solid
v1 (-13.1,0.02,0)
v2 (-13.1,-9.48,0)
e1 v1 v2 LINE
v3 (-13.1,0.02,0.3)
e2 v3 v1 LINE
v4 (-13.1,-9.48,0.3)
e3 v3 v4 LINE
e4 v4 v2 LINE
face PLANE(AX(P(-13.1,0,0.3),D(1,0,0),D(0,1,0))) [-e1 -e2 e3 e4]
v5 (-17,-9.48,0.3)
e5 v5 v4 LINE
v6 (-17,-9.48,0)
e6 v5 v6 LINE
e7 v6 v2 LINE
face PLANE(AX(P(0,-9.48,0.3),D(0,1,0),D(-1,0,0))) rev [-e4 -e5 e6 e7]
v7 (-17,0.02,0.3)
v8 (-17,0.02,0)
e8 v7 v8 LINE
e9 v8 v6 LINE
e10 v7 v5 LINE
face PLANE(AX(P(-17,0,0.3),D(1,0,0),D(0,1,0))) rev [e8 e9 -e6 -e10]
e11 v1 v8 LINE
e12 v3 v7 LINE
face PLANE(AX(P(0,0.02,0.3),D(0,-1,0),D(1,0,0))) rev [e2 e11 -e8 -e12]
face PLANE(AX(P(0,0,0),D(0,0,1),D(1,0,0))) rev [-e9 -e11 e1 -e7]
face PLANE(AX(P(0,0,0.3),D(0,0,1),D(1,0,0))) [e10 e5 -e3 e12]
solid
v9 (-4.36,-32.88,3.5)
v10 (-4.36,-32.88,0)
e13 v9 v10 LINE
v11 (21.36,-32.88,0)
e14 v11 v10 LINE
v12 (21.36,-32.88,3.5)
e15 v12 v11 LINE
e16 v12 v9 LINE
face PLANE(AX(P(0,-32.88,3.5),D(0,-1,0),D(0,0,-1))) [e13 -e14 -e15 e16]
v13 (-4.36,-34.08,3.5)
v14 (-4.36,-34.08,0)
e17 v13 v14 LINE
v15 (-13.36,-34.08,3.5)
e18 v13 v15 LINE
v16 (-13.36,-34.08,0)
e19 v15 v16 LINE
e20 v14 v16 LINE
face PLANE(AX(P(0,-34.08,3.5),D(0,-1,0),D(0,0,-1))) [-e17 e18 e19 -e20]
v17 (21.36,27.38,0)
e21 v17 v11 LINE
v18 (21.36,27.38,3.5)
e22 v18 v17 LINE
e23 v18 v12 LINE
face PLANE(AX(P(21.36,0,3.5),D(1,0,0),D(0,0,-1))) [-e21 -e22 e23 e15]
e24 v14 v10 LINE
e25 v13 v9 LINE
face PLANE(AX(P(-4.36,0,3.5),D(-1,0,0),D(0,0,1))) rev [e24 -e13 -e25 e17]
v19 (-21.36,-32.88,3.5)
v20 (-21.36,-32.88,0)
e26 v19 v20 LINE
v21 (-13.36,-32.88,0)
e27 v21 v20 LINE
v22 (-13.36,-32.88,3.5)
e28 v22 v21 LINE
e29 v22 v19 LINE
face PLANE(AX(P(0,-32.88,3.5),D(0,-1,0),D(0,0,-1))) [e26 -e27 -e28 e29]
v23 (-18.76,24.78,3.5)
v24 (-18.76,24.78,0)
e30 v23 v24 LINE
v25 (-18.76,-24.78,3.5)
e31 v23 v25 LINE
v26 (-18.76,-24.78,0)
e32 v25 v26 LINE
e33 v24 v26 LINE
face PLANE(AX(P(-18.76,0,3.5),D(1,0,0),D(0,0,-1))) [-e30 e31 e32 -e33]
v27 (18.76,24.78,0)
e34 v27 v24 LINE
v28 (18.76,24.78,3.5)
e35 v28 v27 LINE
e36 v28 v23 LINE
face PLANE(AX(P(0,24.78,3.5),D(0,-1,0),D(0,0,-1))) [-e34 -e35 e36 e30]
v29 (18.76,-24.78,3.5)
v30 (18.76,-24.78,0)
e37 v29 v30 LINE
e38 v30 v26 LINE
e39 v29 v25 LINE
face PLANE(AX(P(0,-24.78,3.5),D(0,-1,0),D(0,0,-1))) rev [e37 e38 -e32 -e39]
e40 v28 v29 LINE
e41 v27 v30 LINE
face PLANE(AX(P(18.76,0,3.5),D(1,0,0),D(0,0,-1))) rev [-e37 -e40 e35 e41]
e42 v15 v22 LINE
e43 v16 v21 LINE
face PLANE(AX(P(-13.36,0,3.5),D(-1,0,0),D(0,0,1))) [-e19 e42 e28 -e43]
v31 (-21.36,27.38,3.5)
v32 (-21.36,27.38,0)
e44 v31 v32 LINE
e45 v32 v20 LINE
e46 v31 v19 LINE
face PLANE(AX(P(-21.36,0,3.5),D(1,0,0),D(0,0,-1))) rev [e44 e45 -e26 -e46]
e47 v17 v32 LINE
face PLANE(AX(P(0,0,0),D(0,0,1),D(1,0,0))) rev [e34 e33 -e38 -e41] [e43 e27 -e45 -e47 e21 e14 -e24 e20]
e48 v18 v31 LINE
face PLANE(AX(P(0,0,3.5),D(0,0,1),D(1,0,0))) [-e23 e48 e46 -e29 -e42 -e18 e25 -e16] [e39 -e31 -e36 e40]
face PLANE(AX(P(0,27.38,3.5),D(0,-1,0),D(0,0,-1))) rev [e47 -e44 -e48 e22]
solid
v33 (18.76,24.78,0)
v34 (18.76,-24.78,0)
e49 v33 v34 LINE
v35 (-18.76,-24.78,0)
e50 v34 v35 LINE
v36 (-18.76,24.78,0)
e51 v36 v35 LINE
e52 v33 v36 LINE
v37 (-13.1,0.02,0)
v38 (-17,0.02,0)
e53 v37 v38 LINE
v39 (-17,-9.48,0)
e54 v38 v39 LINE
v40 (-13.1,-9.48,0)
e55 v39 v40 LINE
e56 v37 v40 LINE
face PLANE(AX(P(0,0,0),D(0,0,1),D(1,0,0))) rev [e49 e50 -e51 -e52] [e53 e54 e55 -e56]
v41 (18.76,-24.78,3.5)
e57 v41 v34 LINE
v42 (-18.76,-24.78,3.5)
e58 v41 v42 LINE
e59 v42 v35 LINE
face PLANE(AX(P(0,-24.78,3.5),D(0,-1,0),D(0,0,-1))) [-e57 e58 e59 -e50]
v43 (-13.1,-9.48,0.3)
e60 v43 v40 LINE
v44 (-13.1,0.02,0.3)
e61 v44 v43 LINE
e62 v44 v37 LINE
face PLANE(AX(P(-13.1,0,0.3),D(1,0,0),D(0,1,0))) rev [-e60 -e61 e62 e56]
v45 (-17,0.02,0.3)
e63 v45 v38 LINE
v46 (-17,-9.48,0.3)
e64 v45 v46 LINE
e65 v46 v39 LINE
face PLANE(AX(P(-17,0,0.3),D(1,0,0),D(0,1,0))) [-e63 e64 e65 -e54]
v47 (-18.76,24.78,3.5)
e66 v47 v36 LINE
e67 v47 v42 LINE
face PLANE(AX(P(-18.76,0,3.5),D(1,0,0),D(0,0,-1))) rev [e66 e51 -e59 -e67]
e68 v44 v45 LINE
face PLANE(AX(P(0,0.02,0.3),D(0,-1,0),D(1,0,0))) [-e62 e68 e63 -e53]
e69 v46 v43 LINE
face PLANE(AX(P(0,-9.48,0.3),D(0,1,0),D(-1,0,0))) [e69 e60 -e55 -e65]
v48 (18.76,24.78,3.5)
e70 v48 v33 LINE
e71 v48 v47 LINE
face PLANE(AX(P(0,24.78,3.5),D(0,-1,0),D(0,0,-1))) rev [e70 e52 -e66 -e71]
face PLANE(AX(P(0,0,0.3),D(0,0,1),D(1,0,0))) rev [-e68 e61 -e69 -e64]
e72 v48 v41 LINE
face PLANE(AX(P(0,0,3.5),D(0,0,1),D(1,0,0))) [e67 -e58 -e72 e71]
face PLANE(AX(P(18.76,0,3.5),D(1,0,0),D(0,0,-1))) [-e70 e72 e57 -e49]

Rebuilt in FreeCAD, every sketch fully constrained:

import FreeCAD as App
import Part
import Sketcher
Q = App.Units.Quantity


def add_polygon(sketch, points):
    """Adds a closed chain of lines whose ends are joined by coincident constraints."""
    first, n = sketch.GeometryCount, len(points)
    for a, b in zip(points, points[1:] + points[:1]):
        sketch.addGeometry(Part.LineSegment(App.Vector(*a, 0), App.Vector(*b, 0)), False)
    for i in range(n):
        sketch.addConstraint(Sketcher.Constraint("Coincident", first + i, 2, first + (i + 1) % n, 1))

doc = App.newDocument("Part")
body = doc.addObject("PartDesign::Body", "Body")

# Sketch on XY plane
sketch1 = body.newObject("Sketcher::SketchObject", "Sketch")
sketch1.AttachmentSupport = (doc.getObject("XY_Plane"), [""])
sketch1.MapMode = "FlatFace"
add_polygon(sketch1, [(-21.4, 27.4), (-21.4, -32.9), (-13.4, -32.9), (-13.4, -34.1), (-4.4, -34.1), (-4.4, -32.9), (21.4, -32.9), (21.4, 27.4)])  # lines 0-7
add_polygon(sketch1, [(18.8, -24.8), (-18.8, -24.8), (-18.8, 24.8), (18.8, 24.8)])  # lines 8-11
sketch1.addConstraint(Sketcher.Constraint("Vertical", 0))
sketch1.addConstraint(Sketcher.Constraint("Horizontal", 1))
sketch1.addConstraint(Sketcher.Constraint("Vertical", 2))
sketch1.addConstraint(Sketcher.Constraint("Horizontal", 3))
sketch1.addConstraint(Sketcher.Constraint("Vertical", 4))
sketch1.addConstraint(Sketcher.Constraint("Horizontal", 5))
sketch1.addConstraint(Sketcher.Constraint("Vertical", 6))
sketch1.addConstraint(Sketcher.Constraint("Horizontal", 7))
sketch1.addConstraint(Sketcher.Constraint("Horizontal", 8))
sketch1.addConstraint(Sketcher.Constraint("Vertical", 9))
sketch1.addConstraint(Sketcher.Constraint("Horizontal", 10))
sketch1.addConstraint(Sketcher.Constraint("Vertical", 11))
sketch1.addConstraint(Sketcher.Constraint("Symmetric", 8, 2, 10, 2, -1, 1))
sketch1.addConstraint(Sketcher.Constraint("Symmetric", 0, 2, 5, 2, -2))
sketch1.addConstraint(Sketcher.Constraint("DistanceX", 1, 1, 1, 2, Q("8 mm")))
sketch1.addConstraint(Sketcher.Constraint("DistanceX", 3, 1, 3, 2, Q("9 mm")))
sketch1.addConstraint(Sketcher.Constraint("DistanceY", 2, 2, 2, 1, Q("1.2 mm")))
sketch1.addConstraint(Sketcher.Constraint("DistanceX", 5, 1, 5, 2, Q("25.72 mm")))
sketch1.addConstraint(Sketcher.Constraint("DistanceX", 8, 2, 8, 1, Q("37.52 mm")))
sketch1.addConstraint(Sketcher.Constraint("DistanceY", 0, 2, 0, 1, Q("60.26 mm")))
sketch1.addConstraint(Sketcher.Constraint("DistanceY", 9, 1, 9, 2, Q("49.56 mm")))
sketch1.addConstraint(Sketcher.Constraint("DistanceY", 0, 2, 8, 2, Q("8.1 mm")))
pad1 = body.newObject("PartDesign::Pad", "Pad")
pad1.Profile = sketch1
pad1.Length = 3.5
body2 = doc.addObject("PartDesign::Body", "Body001")

# Sketch on XY plane
sketch2 = body2.newObject("Sketcher::SketchObject", "Sketch001")
sketch2.AttachmentSupport = (doc.getObject("XY_Plane001"), [""])
sketch2.MapMode = "FlatFace"
add_polygon(sketch2, [(-19, 25), (-19, -25), (19, -25), (19, 25)])  # lines 0-3
sketch2.addConstraint(Sketcher.Constraint("Vertical", 0))
sketch2.addConstraint(Sketcher.Constraint("Horizontal", 1))
sketch2.addConstraint(Sketcher.Constraint("Vertical", 2))
sketch2.addConstraint(Sketcher.Constraint("Horizontal", 3))
sketch2.addConstraint(Sketcher.Constraint("Symmetric", 0, 2, 2, 2, -1, 1))
sketch2.addConstraint(Sketcher.Constraint("DistanceX", 1, 1, 1, 2, Q("37.52 mm")))
sketch2.addConstraint(Sketcher.Constraint("DistanceY", 0, 2, 0, 1, Q("49.56 mm")))
pad2 = body2.newObject("PartDesign::Pad", "Pad001")
pad2.Profile = sketch2
pad2.Length = 3.5

# Sketch on XY plane
sketch3 = body2.newObject("Sketcher::SketchObject", "Sketch002")
sketch3.AttachmentSupport = (doc.getObject("XY_Plane001"), [""])
sketch3.MapMode = "FlatFace"
add_polygon(sketch3, [(-17, 0), (-17, -9.5), (-13.1, -9.5), (-13.1, 0)])  # lines 0-3
sketch3.addConstraint(Sketcher.Constraint("Vertical", 0))
sketch3.addConstraint(Sketcher.Constraint("Horizontal", 1))
sketch3.addConstraint(Sketcher.Constraint("Vertical", 2))
sketch3.addConstraint(Sketcher.Constraint("Horizontal", 3))
sketch3.addConstraint(Sketcher.Constraint("DistanceX", 1, 1, 1, 2, Q("3.9 mm")))
sketch3.addConstraint(Sketcher.Constraint("DistanceY", 0, 2, 0, 1, Q("9.5 mm")))
sketch3.addConstraint(Sketcher.Constraint("DistanceX", 0, 2, -1, 1, Q("17 mm")))
sketch3.addConstraint(Sketcher.Constraint("DistanceY", 0, 2, -1, 1, Q("9.48 mm")))
pocket1 = body2.newObject("PartDesign::Pocket", "Pocket")
pocket1.Profile = sketch3
pocket1.Length = 0.3
pocket1.Reversed = True
body3 = doc.addObject("PartDesign::Body", "Body002")

# Sketch on XY plane
sketch4 = body3.newObject("Sketcher::SketchObject", "Sketch003")
sketch4.AttachmentSupport = (doc.getObject("XY_Plane002"), [""])
sketch4.MapMode = "FlatFace"
add_polygon(sketch4, [(-17, 0), (-17, -9.5), (-13.1, -9.5), (-13.1, 0)])  # lines 0-3
sketch4.addConstraint(Sketcher.Constraint("Vertical", 0))
sketch4.addConstraint(Sketcher.Constraint("Horizontal", 1))
sketch4.addConstraint(Sketcher.Constraint("Vertical", 2))
sketch4.addConstraint(Sketcher.Constraint("Horizontal", 3))
sketch4.addConstraint(Sketcher.Constraint("DistanceX", 1, 1, 1, 2, Q("3.9 mm")))
sketch4.addConstraint(Sketcher.Constraint("DistanceY", 0, 2, 0, 1, Q("9.5 mm")))
sketch4.addConstraint(Sketcher.Constraint("DistanceX", 0, 2, -1, 1, Q("17 mm")))
sketch4.addConstraint(Sketcher.Constraint("DistanceY", 0, 2, -1, 1, Q("9.48 mm")))
pad3 = body3.newObject("PartDesign::Pad", "Pad002")
pad3.Profile = sketch4
pad3.Length = 0.3

doc.recompute()
